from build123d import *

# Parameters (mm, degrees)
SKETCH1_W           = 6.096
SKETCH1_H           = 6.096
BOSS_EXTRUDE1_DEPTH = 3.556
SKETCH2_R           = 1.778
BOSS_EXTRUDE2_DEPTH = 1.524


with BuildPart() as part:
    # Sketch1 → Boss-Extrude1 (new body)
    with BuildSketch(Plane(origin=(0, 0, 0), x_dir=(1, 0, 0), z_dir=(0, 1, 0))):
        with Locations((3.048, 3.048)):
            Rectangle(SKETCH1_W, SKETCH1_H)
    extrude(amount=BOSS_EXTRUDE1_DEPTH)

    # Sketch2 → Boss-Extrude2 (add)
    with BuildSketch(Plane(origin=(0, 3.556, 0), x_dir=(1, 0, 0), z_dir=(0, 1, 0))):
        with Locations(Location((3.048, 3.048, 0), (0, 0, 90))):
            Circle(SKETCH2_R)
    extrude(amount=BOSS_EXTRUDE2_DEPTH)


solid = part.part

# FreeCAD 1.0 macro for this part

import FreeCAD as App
import Part
import Sketcher
from FreeCAD import Vector
Q = App.Units.Quantity


def add_polygon(sketch, points):
    """Adds a closed chain of lines whose ends are joined by coincident constraints."""
    first, n = sketch.GeometryCount, len(points)
    for a, b in zip(points, points[1:] + points[:1]):
        sketch.addGeometry(Part.LineSegment(App.Vector(*a, 0), App.Vector(*b, 0)), False)
    for i in range(n):
        sketch.addConstraint(Sketcher.Constraint("Coincident", first + i, 2, first + (i + 1) % n, 1))

doc = App.newDocument("Part")
body = doc.addObject("PartDesign::Body", "Body")

sketch1 = doc.addObject("Sketcher::SketchObject", "Sketch")
body.addObject(sketch1)
sketch1.AttachmentSupport = (doc.XZ_Plane, [""])
sketch1.MapMode = "FlatFace"
add_polygon(sketch1, [(0, -6.096), (0, 0), (6.096, 0), (6.096, -6.096)])
sketch1.addConstraint(Sketcher.Constraint("Vertical", 0))
sketch1.addConstraint(Sketcher.Constraint("Horizontal", 1))
sketch1.addConstraint(Sketcher.Constraint("Vertical", 2))
sketch1.addConstraint(Sketcher.Constraint("Horizontal", 3))
sketch1.addConstraint(Sketcher.Constraint("Coincident", 0, 2, -1, 1))
sketch1.addConstraint(Sketcher.Constraint("Equal", 3, 0))
sketch1.addConstraint(Sketcher.Constraint("DistanceX", 1, 1, 1, 2, Q("0.24 in")))
pad1 = doc.addObject("PartDesign::Pad", "Pad")
body.addObject(pad1)
pad1.Profile = sketch1
pad1.Length = Q("0.14 in")
pad1.Reversed = True

sketch2 = doc.addObject("Sketcher::SketchObject", "Sketch001")
body.addObject(sketch2)
sketch2.AttachmentSupport = (doc.XZ_Plane, [""])
sketch2.MapMode = "FlatFace"
sketch2.AttachmentOffset = App.Placement(Vector(0, 0, -0.14 * 25.4), App.Rotation())
sketch2.addGeometry(Part.Circle(Vector(3.048, -3.048, 0), Vector(0, 0, 1), 1.778), False)
sketch2.addConstraint(Sketcher.Constraint("Diameter", 0, Q("0.14 in")))
sketch2.addConstraint(Sketcher.Constraint("DistanceX", -1, 1, 0, 3, Q("0.12 in")))
sketch2.addConstraint(Sketcher.Constraint("DistanceY", 0, 3, -1, 1, Q("0.12 in")))
pad2 = doc.addObject("PartDesign::Pad", "Pad001")
body.addObject(pad2)
pad2.Profile = sketch2
pad2.Length = Q("0.06 in")
pad2.Reversed = True

doc.recompute()
